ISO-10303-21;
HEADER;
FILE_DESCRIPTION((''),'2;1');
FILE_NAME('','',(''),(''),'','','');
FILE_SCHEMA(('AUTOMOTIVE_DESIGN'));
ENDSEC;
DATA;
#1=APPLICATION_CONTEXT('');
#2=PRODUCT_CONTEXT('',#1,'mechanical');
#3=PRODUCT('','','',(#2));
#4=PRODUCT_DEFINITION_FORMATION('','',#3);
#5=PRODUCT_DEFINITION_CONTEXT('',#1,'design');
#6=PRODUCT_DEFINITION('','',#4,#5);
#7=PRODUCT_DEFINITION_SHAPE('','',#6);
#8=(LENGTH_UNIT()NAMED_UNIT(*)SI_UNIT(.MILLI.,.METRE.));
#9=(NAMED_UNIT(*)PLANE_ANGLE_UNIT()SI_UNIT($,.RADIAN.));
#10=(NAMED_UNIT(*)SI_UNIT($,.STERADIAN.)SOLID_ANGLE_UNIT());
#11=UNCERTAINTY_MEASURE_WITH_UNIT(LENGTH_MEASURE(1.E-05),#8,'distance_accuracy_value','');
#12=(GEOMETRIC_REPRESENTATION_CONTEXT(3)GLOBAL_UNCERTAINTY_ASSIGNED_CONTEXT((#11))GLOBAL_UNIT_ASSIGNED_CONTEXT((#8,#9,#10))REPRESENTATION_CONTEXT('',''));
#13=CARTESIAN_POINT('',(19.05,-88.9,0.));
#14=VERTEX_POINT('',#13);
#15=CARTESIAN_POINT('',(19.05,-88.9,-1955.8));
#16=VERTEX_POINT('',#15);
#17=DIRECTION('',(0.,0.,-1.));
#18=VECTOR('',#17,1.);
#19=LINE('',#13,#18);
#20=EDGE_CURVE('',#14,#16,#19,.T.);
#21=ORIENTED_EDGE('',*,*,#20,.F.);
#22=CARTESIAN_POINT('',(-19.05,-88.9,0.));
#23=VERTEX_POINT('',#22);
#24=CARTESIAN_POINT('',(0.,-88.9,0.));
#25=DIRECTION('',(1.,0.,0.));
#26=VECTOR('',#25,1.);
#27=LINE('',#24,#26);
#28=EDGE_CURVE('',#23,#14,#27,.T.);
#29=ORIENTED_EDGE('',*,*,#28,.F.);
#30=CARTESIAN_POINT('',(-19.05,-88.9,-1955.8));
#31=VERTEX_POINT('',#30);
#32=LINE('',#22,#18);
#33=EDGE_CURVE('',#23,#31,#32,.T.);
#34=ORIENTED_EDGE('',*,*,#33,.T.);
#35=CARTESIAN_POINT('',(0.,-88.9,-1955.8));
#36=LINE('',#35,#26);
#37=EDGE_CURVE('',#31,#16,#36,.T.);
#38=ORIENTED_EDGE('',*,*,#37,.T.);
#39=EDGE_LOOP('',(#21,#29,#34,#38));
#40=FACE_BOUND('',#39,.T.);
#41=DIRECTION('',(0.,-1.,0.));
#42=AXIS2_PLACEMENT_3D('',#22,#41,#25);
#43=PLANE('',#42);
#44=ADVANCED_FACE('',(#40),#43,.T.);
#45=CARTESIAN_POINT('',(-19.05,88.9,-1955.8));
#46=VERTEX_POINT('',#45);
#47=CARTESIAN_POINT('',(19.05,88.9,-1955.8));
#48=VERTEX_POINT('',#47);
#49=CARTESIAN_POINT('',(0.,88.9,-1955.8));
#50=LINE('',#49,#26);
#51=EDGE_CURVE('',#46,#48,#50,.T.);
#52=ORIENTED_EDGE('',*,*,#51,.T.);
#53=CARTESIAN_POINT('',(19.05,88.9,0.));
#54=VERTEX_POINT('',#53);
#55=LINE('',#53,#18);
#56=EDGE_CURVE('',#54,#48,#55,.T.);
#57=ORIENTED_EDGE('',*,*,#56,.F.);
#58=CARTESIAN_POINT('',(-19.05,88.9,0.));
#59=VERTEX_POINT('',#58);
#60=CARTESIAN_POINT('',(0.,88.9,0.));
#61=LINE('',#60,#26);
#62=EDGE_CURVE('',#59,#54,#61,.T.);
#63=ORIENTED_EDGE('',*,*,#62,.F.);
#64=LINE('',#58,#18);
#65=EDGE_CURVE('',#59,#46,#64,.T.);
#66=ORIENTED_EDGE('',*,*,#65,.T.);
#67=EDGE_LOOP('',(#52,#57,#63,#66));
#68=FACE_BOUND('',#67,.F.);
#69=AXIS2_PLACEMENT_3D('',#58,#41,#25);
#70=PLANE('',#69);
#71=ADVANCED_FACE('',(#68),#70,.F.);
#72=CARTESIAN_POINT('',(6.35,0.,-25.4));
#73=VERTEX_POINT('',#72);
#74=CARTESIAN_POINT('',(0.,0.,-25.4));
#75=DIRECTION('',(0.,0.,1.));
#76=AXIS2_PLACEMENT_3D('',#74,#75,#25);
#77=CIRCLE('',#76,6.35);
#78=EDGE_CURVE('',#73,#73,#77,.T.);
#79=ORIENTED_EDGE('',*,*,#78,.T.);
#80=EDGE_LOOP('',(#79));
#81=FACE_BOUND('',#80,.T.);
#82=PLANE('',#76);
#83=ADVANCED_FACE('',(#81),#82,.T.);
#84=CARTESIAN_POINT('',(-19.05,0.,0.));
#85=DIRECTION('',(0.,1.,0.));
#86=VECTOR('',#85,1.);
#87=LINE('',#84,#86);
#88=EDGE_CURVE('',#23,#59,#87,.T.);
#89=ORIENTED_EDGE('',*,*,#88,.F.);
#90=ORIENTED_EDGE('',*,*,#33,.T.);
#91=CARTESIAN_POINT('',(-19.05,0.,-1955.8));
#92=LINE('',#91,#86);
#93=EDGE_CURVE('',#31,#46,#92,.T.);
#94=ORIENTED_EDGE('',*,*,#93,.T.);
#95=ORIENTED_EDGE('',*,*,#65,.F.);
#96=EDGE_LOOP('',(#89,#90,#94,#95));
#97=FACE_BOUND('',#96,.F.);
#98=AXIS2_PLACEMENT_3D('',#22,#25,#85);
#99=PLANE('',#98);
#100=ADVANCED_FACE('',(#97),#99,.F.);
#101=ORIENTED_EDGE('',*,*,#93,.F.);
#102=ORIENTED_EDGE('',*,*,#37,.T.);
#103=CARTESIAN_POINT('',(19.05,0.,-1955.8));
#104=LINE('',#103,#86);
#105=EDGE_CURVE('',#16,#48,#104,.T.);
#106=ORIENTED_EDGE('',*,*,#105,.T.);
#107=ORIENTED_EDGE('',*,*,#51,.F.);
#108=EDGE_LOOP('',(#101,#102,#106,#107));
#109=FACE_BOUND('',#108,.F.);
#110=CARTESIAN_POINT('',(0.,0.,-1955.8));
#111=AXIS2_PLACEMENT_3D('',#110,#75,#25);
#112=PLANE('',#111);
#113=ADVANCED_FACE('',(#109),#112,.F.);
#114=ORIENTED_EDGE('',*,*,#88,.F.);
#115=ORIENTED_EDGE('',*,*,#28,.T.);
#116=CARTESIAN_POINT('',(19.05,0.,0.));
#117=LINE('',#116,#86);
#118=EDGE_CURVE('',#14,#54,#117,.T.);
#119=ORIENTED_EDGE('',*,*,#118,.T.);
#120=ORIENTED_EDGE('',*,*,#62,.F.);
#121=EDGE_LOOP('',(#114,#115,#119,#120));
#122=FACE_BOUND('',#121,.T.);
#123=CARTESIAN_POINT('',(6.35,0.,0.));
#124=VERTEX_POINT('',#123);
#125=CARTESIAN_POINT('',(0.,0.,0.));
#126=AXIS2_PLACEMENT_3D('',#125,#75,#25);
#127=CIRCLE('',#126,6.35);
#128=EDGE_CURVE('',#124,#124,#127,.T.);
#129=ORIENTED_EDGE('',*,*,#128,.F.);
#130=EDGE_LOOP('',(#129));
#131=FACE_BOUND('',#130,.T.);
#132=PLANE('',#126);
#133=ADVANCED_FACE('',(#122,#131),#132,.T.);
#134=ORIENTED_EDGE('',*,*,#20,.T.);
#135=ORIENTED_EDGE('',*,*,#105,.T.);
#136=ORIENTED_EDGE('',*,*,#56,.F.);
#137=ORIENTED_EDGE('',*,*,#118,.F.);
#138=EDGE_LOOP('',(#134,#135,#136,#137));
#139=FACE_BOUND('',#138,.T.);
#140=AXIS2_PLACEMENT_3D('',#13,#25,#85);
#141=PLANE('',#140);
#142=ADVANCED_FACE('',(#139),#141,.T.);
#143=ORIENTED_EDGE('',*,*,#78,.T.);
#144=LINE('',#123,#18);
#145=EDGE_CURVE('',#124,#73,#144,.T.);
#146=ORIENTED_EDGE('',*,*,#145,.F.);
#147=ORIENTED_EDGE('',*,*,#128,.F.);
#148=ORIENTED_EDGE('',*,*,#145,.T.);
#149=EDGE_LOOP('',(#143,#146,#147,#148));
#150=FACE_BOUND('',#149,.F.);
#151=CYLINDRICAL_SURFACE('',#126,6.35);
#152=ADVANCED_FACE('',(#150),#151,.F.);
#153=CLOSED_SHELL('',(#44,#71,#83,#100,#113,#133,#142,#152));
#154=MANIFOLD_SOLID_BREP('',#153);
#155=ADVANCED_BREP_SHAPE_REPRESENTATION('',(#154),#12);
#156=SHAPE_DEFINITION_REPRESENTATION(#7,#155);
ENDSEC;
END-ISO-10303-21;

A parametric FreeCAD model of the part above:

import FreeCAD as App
import Part
import Sketcher

V = App.Vector
Q = App.Units.Quantity

doc = App.newDocument("Part")
body = doc.addObject("PartDesign::Body", "Body")

sketch1 = body.newObject("Sketcher::SketchObject", "Sketch")
sketch1.AttachmentSupport = (doc.getObject("XY_Plane"), [""])
sketch1.MapMode = "FlatFace"
sketch1.addGeometry(Part.LineSegment(V(-19.05, 88.9, 0), V(-19.05, -88.9, 0)), False)
sketch1.addGeometry(Part.LineSegment(V(-19.05, -88.9, 0), V(19.05, -88.9, 0)), False)
sketch1.addGeometry(Part.LineSegment(V(19.05, -88.9, 0), V(19.05, 88.9, 0)), False)
sketch1.addGeometry(Part.LineSegment(V(19.05, 88.9, 0), V(-19.05, 88.9, 0)), False)
sketch1.addConstraint(Sketcher.Constraint("Coincident", 0, 2, 1, 1))
sketch1.addConstraint(Sketcher.Constraint("Coincident", 1, 2, 2, 1))
sketch1.addConstraint(Sketcher.Constraint("Coincident", 2, 2, 3, 1))
sketch1.addConstraint(Sketcher.Constraint("Coincident", 3, 2, 0, 1))
sketch1.addConstraint(Sketcher.Constraint("Vertical", 0))
sketch1.addConstraint(Sketcher.Constraint("Horizontal", 1))
sketch1.addConstraint(Sketcher.Constraint("Vertical", 2))
sketch1.addConstraint(Sketcher.Constraint("Horizontal", 3))
sketch1.addConstraint(Sketcher.Constraint("Symmetric", 0, 2, 2, 2, -1, 1))
sketch1.addConstraint(Sketcher.Constraint("DistanceY", 0, 2, 0, 1, Q("7 in")))
sketch1.addConstraint(Sketcher.Constraint("DistanceX", 1, 1, 1, 2, Q("1.5 in")))
pad1 = body.newObject("PartDesign::Pad", "Pad")
pad1.Profile = sketch1
pad1.Length = Q("77 in")
pad1.Reversed = True

sketch2 = body.newObject("Sketcher::SketchObject", "Sketch001")
sketch2.AttachmentSupport = (doc.getObject("XY_Plane"), [""])
sketch2.MapMode = "FlatFace"
sketch2.addGeometry(Part.Circle(V(0, 0, 0), V(0, 0, 1), 6.35), False)
sketch2.addConstraint(Sketcher.Constraint("Coincident", 0, 3, -1, 1))
sketch2.addConstraint(Sketcher.Constraint("Diameter", 0, Q("0.5 in")))
pocket1 = body.newObject("PartDesign::Pocket", "Pocket")
pocket1.Profile = sketch2
pocket1.Length = Q("1 in")

doc.recompute()
